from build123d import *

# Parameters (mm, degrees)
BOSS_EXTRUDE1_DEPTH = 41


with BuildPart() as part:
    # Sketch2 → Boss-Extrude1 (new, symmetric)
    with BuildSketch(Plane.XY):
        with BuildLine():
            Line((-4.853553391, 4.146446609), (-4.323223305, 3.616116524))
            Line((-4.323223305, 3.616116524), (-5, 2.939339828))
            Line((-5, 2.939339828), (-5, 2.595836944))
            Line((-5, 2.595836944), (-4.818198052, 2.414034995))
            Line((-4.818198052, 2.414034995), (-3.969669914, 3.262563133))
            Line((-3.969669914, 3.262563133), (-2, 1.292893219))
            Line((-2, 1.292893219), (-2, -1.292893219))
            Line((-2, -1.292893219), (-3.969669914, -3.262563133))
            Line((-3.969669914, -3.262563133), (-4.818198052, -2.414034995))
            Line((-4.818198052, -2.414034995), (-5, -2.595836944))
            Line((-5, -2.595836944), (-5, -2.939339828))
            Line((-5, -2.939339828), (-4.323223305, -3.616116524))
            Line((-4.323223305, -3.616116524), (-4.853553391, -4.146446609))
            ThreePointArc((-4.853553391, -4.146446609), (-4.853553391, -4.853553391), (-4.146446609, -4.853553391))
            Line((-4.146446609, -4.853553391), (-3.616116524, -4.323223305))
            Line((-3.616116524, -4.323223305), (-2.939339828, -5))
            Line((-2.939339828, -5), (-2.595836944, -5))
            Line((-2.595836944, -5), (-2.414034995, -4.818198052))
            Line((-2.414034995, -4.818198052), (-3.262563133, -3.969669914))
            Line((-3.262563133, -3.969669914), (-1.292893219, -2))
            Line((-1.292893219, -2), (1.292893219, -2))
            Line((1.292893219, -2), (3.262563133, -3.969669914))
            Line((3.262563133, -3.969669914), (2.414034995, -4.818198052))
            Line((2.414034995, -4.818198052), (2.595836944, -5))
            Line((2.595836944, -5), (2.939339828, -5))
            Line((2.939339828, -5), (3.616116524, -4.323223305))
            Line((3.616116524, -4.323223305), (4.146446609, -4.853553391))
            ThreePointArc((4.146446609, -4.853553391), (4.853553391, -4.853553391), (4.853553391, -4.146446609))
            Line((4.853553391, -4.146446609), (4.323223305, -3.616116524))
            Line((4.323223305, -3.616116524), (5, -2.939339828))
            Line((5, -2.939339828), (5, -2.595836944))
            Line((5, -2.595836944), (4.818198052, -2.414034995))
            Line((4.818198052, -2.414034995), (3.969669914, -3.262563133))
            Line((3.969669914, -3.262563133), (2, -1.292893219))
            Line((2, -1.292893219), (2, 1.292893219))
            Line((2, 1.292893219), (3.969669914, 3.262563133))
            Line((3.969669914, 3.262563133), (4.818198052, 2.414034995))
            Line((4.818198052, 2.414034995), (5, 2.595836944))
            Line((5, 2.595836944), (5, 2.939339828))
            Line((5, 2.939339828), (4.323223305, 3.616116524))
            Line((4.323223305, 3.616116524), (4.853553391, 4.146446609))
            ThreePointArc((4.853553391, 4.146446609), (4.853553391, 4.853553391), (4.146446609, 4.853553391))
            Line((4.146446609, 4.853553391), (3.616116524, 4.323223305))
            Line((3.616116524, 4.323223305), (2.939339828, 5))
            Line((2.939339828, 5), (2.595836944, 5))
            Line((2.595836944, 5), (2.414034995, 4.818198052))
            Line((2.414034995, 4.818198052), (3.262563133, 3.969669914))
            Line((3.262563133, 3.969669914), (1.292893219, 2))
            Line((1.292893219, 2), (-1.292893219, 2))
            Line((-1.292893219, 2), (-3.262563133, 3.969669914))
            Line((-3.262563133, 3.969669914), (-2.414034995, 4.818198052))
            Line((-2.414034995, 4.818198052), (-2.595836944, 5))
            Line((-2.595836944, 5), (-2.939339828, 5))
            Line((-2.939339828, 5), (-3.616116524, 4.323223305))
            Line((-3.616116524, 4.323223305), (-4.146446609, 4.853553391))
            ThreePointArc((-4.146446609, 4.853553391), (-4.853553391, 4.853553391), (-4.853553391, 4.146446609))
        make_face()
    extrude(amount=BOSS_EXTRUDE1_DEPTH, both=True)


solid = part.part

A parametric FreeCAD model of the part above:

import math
import FreeCAD as App
import Part
import Sketcher
Q = App.Units.Quantity

doc = App.newDocument("Part")
body = doc.addObject("PartDesign::Body", "Body")

# Sketch on XY plane
sketch1 = body.newObject("Sketcher::SketchObject", "Sketch")
sketch1.AttachmentSupport = (doc.getObject("XY_Plane"), [""])
sketch1.MapMode = "FlatFace"
sketch1.addGeometry([
    Part.LineSegment(App.Vector(-4.853553, 4.146447, 0), App.Vector(-4.323223, 3.616117, 0)),  # 0
    Part.LineSegment(App.Vector(-4.323223, 3.616117, 0), App.Vector(-5, 2.93934, 0)),  # 1
    Part.LineSegment(App.Vector(-5, 2.93934, 0), App.Vector(-5, 2.595837, 0)),  # 2
    Part.LineSegment(App.Vector(-5, 2.595837, 0), App.Vector(-4.818198, 2.414035, 0)),  # 3
    Part.LineSegment(App.Vector(-4.818198, 2.414035, 0), App.Vector(-3.96967, 3.262563, 0)),  # 4
    Part.LineSegment(App.Vector(-3.96967, 3.262563, 0), App.Vector(-2, 1.292893, 0)),  # 5
    Part.LineSegment(App.Vector(-2, 1.292893, 0), App.Vector(-2, -1.292893, 0)),  # 6
    Part.LineSegment(App.Vector(-2, -1.292893, 0), App.Vector(-3.96967, -3.262563, 0)),  # 7
    Part.LineSegment(App.Vector(-3.96967, -3.262563, 0), App.Vector(-4.818198, -2.414035, 0)),  # 8
    Part.LineSegment(App.Vector(-4.818198, -2.414035, 0), App.Vector(-5, -2.595837, 0)),  # 9
    Part.LineSegment(App.Vector(-5, -2.595837, 0), App.Vector(-5, -2.93934, 0)),  # 10
    Part.LineSegment(App.Vector(-5, -2.93934, 0), App.Vector(-4.323223, -3.616117, 0)),  # 11
    Part.LineSegment(App.Vector(-4.323223, -3.616117, 0), App.Vector(-4.853553, -4.146447, 0)),  # 12
    Part.ArcOfCircle(Part.Circle(App.Vector(-4.5, -4.5, 0), App.Vector(0, 0, 1), 0.5), math.radians(135), math.radians(315)),  # 13
    Part.LineSegment(App.Vector(-4.146447, -4.853553, 0), App.Vector(-3.616117, -4.323223, 0)),  # 14
    Part.LineSegment(App.Vector(-3.616117, -4.323223, 0), App.Vector(-2.93934, -5, 0)),  # 15
    Part.LineSegment(App.Vector(-2.93934, -5, 0), App.Vector(-2.595837, -5, 0)),  # 16
    Part.LineSegment(App.Vector(-2.595837, -5, 0), App.Vector(-2.414035, -4.818198, 0)),  # 17
    Part.LineSegment(App.Vector(-2.414035, -4.818198, 0), App.Vector(-3.262563, -3.96967, 0)),  # 18
    Part.LineSegment(App.Vector(-3.262563, -3.96967, 0), App.Vector(-1.292893, -2, 0)),  # 19
    Part.LineSegment(App.Vector(-1.292893, -2, 0), App.Vector(1.292893, -2, 0)),  # 20
    Part.LineSegment(App.Vector(1.292893, -2, 0), App.Vector(3.262563, -3.96967, 0)),  # 21
    Part.LineSegment(App.Vector(3.262563, -3.96967, 0), App.Vector(2.414035, -4.818198, 0)),  # 22
    Part.LineSegment(App.Vector(2.414035, -4.818198, 0), App.Vector(2.595837, -5, 0)),  # 23
    Part.LineSegment(App.Vector(2.595837, -5, 0), App.Vector(2.93934, -5, 0)),  # 24
    Part.LineSegment(App.Vector(2.93934, -5, 0), App.Vector(3.616117, -4.323223, 0)),  # 25
    Part.LineSegment(App.Vector(3.616117, -4.323223, 0), App.Vector(4.146447, -4.853553, 0)),  # 26
    Part.ArcOfCircle(Part.Circle(App.Vector(4.5, -4.5, 0), App.Vector(0, 0, 1), 0.5), math.radians(-135), math.radians(45)),  # 27
    Part.LineSegment(App.Vector(4.853553, -4.146447, 0), App.Vector(4.323223, -3.616117, 0)),  # 28
    Part.LineSegment(App.Vector(4.323223, -3.616117, 0), App.Vector(5, -2.93934, 0)),  # 29
    Part.LineSegment(App.Vector(5, -2.93934, 0), App.Vector(5, -2.595837, 0)),  # 30
    Part.LineSegment(App.Vector(5, -2.595837, 0), App.Vector(4.818198, -2.414035, 0)),  # 31
    Part.LineSegment(App.Vector(4.818198, -2.414035, 0), App.Vector(3.96967, -3.262563, 0)),  # 32
    Part.LineSegment(App.Vector(3.96967, -3.262563, 0), App.Vector(2, -1.292893, 0)),  # 33
    Part.LineSegment(App.Vector(2, -1.292893, 0), App.Vector(2, 1.292893, 0)),  # 34
    Part.LineSegment(App.Vector(2, 1.292893, 0), App.Vector(3.96967, 3.262563, 0)),  # 35
    Part.LineSegment(App.Vector(3.96967, 3.262563, 0), App.Vector(4.818198, 2.414035, 0)),  # 36
    Part.LineSegment(App.Vector(4.818198, 2.414035, 0), App.Vector(5, 2.595837, 0)),  # 37
    Part.LineSegment(App.Vector(5, 2.595837, 0), App.Vector(5, 2.93934, 0)),  # 38
    Part.LineSegment(App.Vector(5, 2.93934, 0), App.Vector(4.323223, 3.616117, 0)),  # 39
    Part.LineSegment(App.Vector(4.323223, 3.616117, 0), App.Vector(4.853553, 4.146447, 0)),  # 40
    Part.ArcOfCircle(Part.Circle(App.Vector(4.5, 4.5, 0), App.Vector(0, 0, 1), 0.5), math.radians(-45), math.radians(135)),  # 41
    Part.LineSegment(App.Vector(4.146447, 4.853553, 0), App.Vector(3.616117, 4.323223, 0)),  # 42
    Part.LineSegment(App.Vector(3.616117, 4.323223, 0), App.Vector(2.93934, 5, 0)),  # 43
    Part.LineSegment(App.Vector(2.93934, 5, 0), App.Vector(2.595837, 5, 0)),  # 44
    Part.LineSegment(App.Vector(2.595837, 5, 0), App.Vector(2.414035, 4.818198, 0)),  # 45
    Part.LineSegment(App.Vector(2.414035, 4.818198, 0), App.Vector(3.262563, 3.96967, 0)),  # 46
    Part.LineSegment(App.Vector(3.262563, 3.96967, 0), App.Vector(1.292893, 2, 0)),  # 47
    Part.LineSegment(App.Vector(1.292893, 2, 0), App.Vector(-1.292893, 2, 0)),  # 48
    Part.LineSegment(App.Vector(-1.292893, 2, 0), App.Vector(-3.262563, 3.96967, 0)),  # 49
    Part.LineSegment(App.Vector(-3.262563, 3.96967, 0), App.Vector(-2.414035, 4.818198, 0)),  # 50
    Part.LineSegment(App.Vector(-2.414035, 4.818198, 0), App.Vector(-2.595837, 5, 0)),  # 51
    Part.LineSegment(App.Vector(-2.595837, 5, 0), App.Vector(-2.93934, 5, 0)),  # 52
    Part.LineSegment(App.Vector(-2.93934, 5, 0), App.Vector(-3.616117, 4.323223, 0)),  # 53
    Part.LineSegment(App.Vector(-3.616117, 4.323223, 0), App.Vector(-4.146447, 4.853553, 0)),  # 54
    Part.ArcOfCircle(Part.Circle(App.Vector(-4.5, 4.5, 0), App.Vector(0, 0, 1), 0.5), math.radians(45), math.radians(225)),  # 55
], False)
sketch1.addConstraint([
    Sketcher.Constraint("Coincident", 0, 2, 1, 1),
    Sketcher.Constraint("Coincident", 1, 2, 2, 1),
    Sketcher.Constraint("Coincident", 2, 2, 3, 1),
    Sketcher.Constraint("Coincident", 3, 2, 4, 1),
    Sketcher.Constraint("Coincident", 4, 2, 5, 1),
    Sketcher.Constraint("Coincident", 5, 2, 6, 1),
    Sketcher.Constraint("Coincident", 6, 2, 7, 1),
    Sketcher.Constraint("Coincident", 7, 2, 8, 1),
    Sketcher.Constraint("Coincident", 8, 2, 9, 1),
    Sketcher.Constraint("Coincident", 9, 2, 10, 1),
    Sketcher.Constraint("Coincident", 10, 2, 11, 1),
    Sketcher.Constraint("Coincident", 11, 2, 12, 1),
    Sketcher.Constraint("Tangent", 12, 2, 13, 1),
    Sketcher.Constraint("Tangent", 13, 2, 14, 1),
    Sketcher.Constraint("Coincident", 14, 2, 15, 1),
    Sketcher.Constraint("Coincident", 15, 2, 16, 1),
    Sketcher.Constraint("Coincident", 16, 2, 17, 1),
    Sketcher.Constraint("Coincident", 17, 2, 18, 1),
    Sketcher.Constraint("Coincident", 18, 2, 19, 1),
    Sketcher.Constraint("Coincident", 19, 2, 20, 1),
    Sketcher.Constraint("Coincident", 20, 2, 21, 1),
    Sketcher.Constraint("Coincident", 21, 2, 22, 1),
    Sketcher.Constraint("Coincident", 22, 2, 23, 1),
    Sketcher.Constraint("Coincident", 23, 2, 24, 1),
    Sketcher.Constraint("Coincident", 24, 2, 25, 1),
    Sketcher.Constraint("Coincident", 25, 2, 26, 1),
    Sketcher.Constraint("Tangent", 26, 2, 27, 1),
    Sketcher.Constraint("Tangent", 27, 2, 28, 1),
    Sketcher.Constraint("Coincident", 28, 2, 29, 1),
    Sketcher.Constraint("Coincident", 29, 2, 30, 1),
    Sketcher.Constraint("Coincident", 30, 2, 31, 1),
    Sketcher.Constraint("Coincident", 31, 2, 32, 1),
    Sketcher.Constraint("Coincident", 32, 2, 33, 1),
    Sketcher.Constraint("Coincident", 33, 2, 34, 1),
    Sketcher.Constraint("Coincident", 34, 2, 35, 1),
    Sketcher.Constraint("Coincident", 35, 2, 36, 1),
    Sketcher.Constraint("Coincident", 36, 2, 37, 1),
    Sketcher.Constraint("Coincident", 37, 2, 38, 1),
    Sketcher.Constraint("Coincident", 38, 2, 39, 1),
    Sketcher.Constraint("Coincident", 39, 2, 40, 1),
    Sketcher.Constraint("Tangent", 40, 2, 41, 1),
    Sketcher.Constraint("Tangent", 41, 2, 42, 1),
    Sketcher.Constraint("Coincident", 42, 2, 43, 1),
    Sketcher.Constraint("Coincident", 43, 2, 44, 1),
    Sketcher.Constraint("Coincident", 44, 2, 45, 1),
    Sketcher.Constraint("Coincident", 45, 2, 46, 1),
    Sketcher.Constraint("Coincident", 46, 2, 47, 1),
    Sketcher.Constraint("Coincident", 47, 2, 48, 1),
    Sketcher.Constraint("Coincident", 48, 2, 49, 1),
    Sketcher.Constraint("Coincident", 49, 2, 50, 1),
    Sketcher.Constraint("Coincident", 50, 2, 51, 1),
    Sketcher.Constraint("Coincident", 51, 2, 52, 1),
    Sketcher.Constraint("Coincident", 52, 2, 53, 1),
    Sketcher.Constraint("Coincident", 53, 2, 54, 1),
    Sketcher.Constraint("Tangent", 54, 2, 55, 1),
    Sketcher.Constraint("Tangent", 55, 2, 0, 1),
    Sketcher.Constraint("Vertical", 2),
    Sketcher.Constraint("Vertical", 6),
    Sketcher.Constraint("Vertical", 10),
    Sketcher.Constraint("Horizontal", 16),
    Sketcher.Constraint("Horizontal", 20),
    Sketcher.Constraint("Horizontal", 24),
    Sketcher.Constraint("Vertical", 30),
    Sketcher.Constraint("Vertical", 34),
    Sketcher.Constraint("Vertical", 38),
    Sketcher.Constraint("Horizontal", 44),
    Sketcher.Constraint("Horizontal", 48),
    Sketcher.Constraint("Horizontal", 52),
    Sketcher.Constraint("Equal", 13, 27),
    Sketcher.Constraint("Equal", 27, 41),
    Sketcher.Constraint("Equal", 41, 55),
    Sketcher.Constraint("Symmetric", 13, 3, 41, 3, -1, 1),
    Sketcher.Constraint("Symmetric", 27, 3, 55, 3, -1, 1),
    Sketcher.Constraint("Symmetric", 0, 2, 28, 2, -1, 1),
    Sketcher.Constraint("Symmetric", 1, 2, 29, 2, -1, 1),
    Sketcher.Constraint("Symmetric", 3, 2, 31, 2, -1, 1),
    Sketcher.Constraint("Symmetric", 4, 2, 32, 2, -1, 1),
    Sketcher.Constraint("Symmetric", 5, 2, 33, 2, -1, 1),
    Sketcher.Constraint("Symmetric", 7, 2, 35, 2, -1, 1),
    Sketcher.Constraint("Symmetric", 8, 2, 36, 2, -1, 1),
    Sketcher.Constraint("Symmetric", 9, 2, 37, 2, -1, 1),
    Sketcher.Constraint("Symmetric", 11, 2, 39, 2, -1, 1),
    Sketcher.Constraint("Symmetric", 14, 2, 42, 2, -1, 1),
    Sketcher.Constraint("Symmetric", 15, 2, 43, 2, -1, 1),
    Sketcher.Constraint("Symmetric", 17, 2, 45, 2, -1, 1),
    Sketcher.Constraint("Symmetric", 18, 2, 46, 2, -1, 1),
    Sketcher.Constraint("Symmetric", 19, 2, 47, 2, -1, 1),
    Sketcher.Constraint("Symmetric", 21, 2, 49, 2, -1, 1),
    Sketcher.Constraint("Symmetric", 22, 2, 50, 2, -1, 1),
    Sketcher.Constraint("Symmetric", 23, 2, 51, 2, -1, 1),
    Sketcher.Constraint("Symmetric", 25, 2, 53, 2, -1, 1),
    Sketcher.Constraint("Symmetric", 13, 3, 27, 3, -2),
    Sketcher.Constraint("Symmetric", 18, 2, 21, 2, -2),
    Sketcher.Constraint("Symmetric", 17, 2, 22, 2, -2),
    Sketcher.Constraint("Symmetric", 16, 2, 23, 2, -2),
    Sketcher.Constraint("Symmetric", 14, 2, 25, 2, -2),
    Sketcher.Constraint("Symmetric", 11, 2, 28, 2, -2),
    Sketcher.Constraint("Symmetric", 10, 2, 29, 2, -2),
    Sketcher.Constraint("Symmetric", 8, 2, 31, 2, -2),
    Sketcher.Constraint("Symmetric", 7, 2, 32, 2, -2),
    Sketcher.Constraint("Perpendicular", 0, 1),
    Sketcher.Constraint("Perpendicular", 1, 3),
    Sketcher.Constraint("Perpendicular", 3, 4),
    Sketcher.Constraint("Perpendicular", 4, 5),
    Sketcher.Constraint("Perpendicular", 5, 7),
    Sketcher.Constraint("Perpendicular", 7, 8),
    Sketcher.Constraint("Perpendicular", 8, 9),
    Sketcher.Constraint("Parallel", 12, 14),
    Sketcher.Constraint("Perpendicular", 14, 15),
    Sketcher.Constraint("Perpendicular", 15, 17),
    Sketcher.Constraint("Perpendicular", 17, 18),
    Sketcher.Constraint("Perpendicular", 18, 19),
    Sketcher.Constraint("Perpendicular", 19, 21),
    Sketcher.Constraint("Perpendicular", 23, 25),
    Sketcher.Constraint("Perpendicular", 29, 31),
    Sketcher.Constraint("Perpendicular", 33, 35),
    Sketcher.Constraint("Perpendicular", 37, 39),
    Sketcher.Constraint("Perpendicular", 43, 45),
    Sketcher.Constraint("Perpendicular", 47, 49),
    Sketcher.Constraint("Perpendicular", 51, 53),
    Sketcher.Constraint("Equal", 52, 2),
    Sketcher.Constraint("Equal", 48, 6),
    Sketcher.Constraint("Equal", 12, 14),
    Sketcher.Constraint("Equal", 11, 15),
    Sketcher.Constraint("Equal", 9, 17),
    Sketcher.Constraint("Equal", 8, 18),
    Sketcher.Constraint("Equal", 7, 19),
    Sketcher.Constraint("Radius", 13, Q("0.5 mm")),
    Sketcher.Constraint("DistanceX", 1, 2, -1, 1, Q("5 mm")),
    Sketcher.Constraint("DistanceX", 5, 2, -1, 1, Q("2 mm")),
    Sketcher.Constraint("DistanceX", 13, 3, 27, 3, Q("9 mm")),
    Sketcher.Constraint("Distance", 4, Q("1.2 mm")),
    Sketcher.Constraint("Distance", 0, Q("0.75 mm")),
    Sketcher.Constraint("DistanceX", 3, 2, -1, 1, Q("4.818198 mm")),
    Sketcher.Constraint("DistanceY", 7, 2, 3, 2, Q("5.676598 mm")),
])
pad1 = body.newObject("PartDesign::Pad", "Pad")
pad1.Profile = sketch1
pad1.Length = 82
pad1.Midplane = True

doc.recompute()
